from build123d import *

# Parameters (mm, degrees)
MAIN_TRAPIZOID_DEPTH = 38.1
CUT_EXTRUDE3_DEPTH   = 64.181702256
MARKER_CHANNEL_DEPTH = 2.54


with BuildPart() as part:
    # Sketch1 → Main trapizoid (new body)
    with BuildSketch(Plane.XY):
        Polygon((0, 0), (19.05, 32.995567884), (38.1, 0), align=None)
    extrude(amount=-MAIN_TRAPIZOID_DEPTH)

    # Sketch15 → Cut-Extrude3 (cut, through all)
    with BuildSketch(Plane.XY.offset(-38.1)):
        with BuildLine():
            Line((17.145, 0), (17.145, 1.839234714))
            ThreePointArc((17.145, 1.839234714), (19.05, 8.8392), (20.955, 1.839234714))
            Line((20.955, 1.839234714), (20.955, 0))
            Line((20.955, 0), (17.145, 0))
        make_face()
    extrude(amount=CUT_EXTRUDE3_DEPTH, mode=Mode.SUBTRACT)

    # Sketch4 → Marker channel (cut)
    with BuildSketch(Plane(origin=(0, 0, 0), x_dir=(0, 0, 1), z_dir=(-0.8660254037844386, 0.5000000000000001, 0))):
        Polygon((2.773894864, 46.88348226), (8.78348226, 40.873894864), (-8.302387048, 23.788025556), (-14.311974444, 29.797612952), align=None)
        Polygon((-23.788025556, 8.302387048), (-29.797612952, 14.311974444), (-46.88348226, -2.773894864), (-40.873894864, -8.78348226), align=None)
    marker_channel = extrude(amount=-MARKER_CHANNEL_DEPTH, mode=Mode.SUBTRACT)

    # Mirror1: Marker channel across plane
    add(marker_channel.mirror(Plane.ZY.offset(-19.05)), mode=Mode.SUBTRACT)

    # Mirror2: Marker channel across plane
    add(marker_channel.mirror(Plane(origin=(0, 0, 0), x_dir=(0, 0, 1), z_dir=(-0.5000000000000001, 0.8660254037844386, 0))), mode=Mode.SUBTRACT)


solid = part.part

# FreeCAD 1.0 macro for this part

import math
import FreeCAD as App
import Part
import Sketcher

V = App.Vector
Q = App.Units.Quantity

doc = App.newDocument("Part")
body = doc.addObject("PartDesign::Body", "Body")

sketch1 = doc.addObject("Sketcher::SketchObject", "Sketch")
body.addObject(sketch1)
sketch1.AttachmentSupport = (doc.XY_Plane, [""])
sketch1.MapMode = "FlatFace"
sketch1.addGeometry(Part.LineSegment(V(19, 33, 0), V(0, 0, 0)), False)
sketch1.addGeometry(Part.LineSegment(V(0, 0, 0), V(38, 0, 0)), False)
sketch1.addGeometry(Part.LineSegment(V(38, 0, 0), V(19, 33, 0)), False)
sketch1.addConstraint(Sketcher.Constraint("Coincident", 0, 2, 1, 1))
sketch1.addConstraint(Sketcher.Constraint("Coincident", 1, 2, 2, 1))
sketch1.addConstraint(Sketcher.Constraint("Coincident", 2, 2, 0, 1))
sketch1.addConstraint(Sketcher.Constraint("Horizontal", 1))
sketch1.addConstraint(Sketcher.Constraint("Coincident", 0, 2, -1, 1))
sketch1.addConstraint(Sketcher.Constraint("Equal", 0, 2))
sketch1.addConstraint(Sketcher.Constraint("DistanceX", 1, 1, 1, 2, Q("1.5 in")))
sketch1.addConstraint(Sketcher.Constraint("Angle", 0, Q("-120 deg")))
pad1 = doc.addObject("PartDesign::Pad", "Pad")
body.addObject(pad1)
pad1.Profile = sketch1
pad1.Length = Q("1.5 in")
pad1.Reversed = True

sketch2 = doc.addObject("Sketcher::SketchObject", "Sketch001")
body.addObject(sketch2)
sketch2.AttachmentSupport = (doc.XY_Plane, [""])
sketch2.MapMode = "FlatFace"
sketch2.AttachmentOffset = App.Placement(V(0, 0, -1.5 * 25.4), App.Rotation())
sketch2.addGeometry(Part.LineSegment(V(17.1, 1.8, 0), V(17.1, 0, 0)), False)
sketch2.addGeometry(Part.LineSegment(V(17.1, 0, 0), V(21, 0, 0)), False)
sketch2.addGeometry(Part.LineSegment(V(21, 0, 0), V(21, 1.8, 0)), False)
sketch2.addGeometry(Part.ArcOfCircle(Part.Circle(V(19.1, 5.1, 0), V(0, 0, 1), 3.8), math.radians(-60), math.radians(240)), False)
sketch2.addConstraint(Sketcher.Constraint("Coincident", 0, 2, 1, 1))
sketch2.addConstraint(Sketcher.Constraint("Coincident", 1, 2, 2, 1))
sketch2.addConstraint(Sketcher.Constraint("Coincident", 2, 2, 3, 1))
sketch2.addConstraint(Sketcher.Constraint("Coincident", 3, 2, 0, 1))
sketch2.addConstraint(Sketcher.Constraint("Vertical", 0))
sketch2.addConstraint(Sketcher.Constraint("Horizontal", 1))
sketch2.addConstraint(Sketcher.Constraint("Vertical", 2))
sketch2.addConstraint(Sketcher.Constraint("PointOnObject", 0, 2, -1))
sketch2.addConstraint(Sketcher.Constraint("Horizontal", 2, 2, 3, 2))
sketch2.addConstraint(Sketcher.Constraint("Radius", 3, Q("0.148 in")))
sketch2.addConstraint(Sketcher.Constraint("DistanceX", 1, 1, 1, 2, Q("0.15 in")))
sketch2.addConstraint(Sketcher.Constraint("DistanceY", -1, 1, 3, 3, Q("0.2 in")))
sketch2.addConstraint(Sketcher.Constraint("DistanceX", -1, 1, 3, 3, Q("0.75 in")))
pocket1 = doc.addObject("PartDesign::Pocket", "Pocket")
body.addObject(pocket1)
pocket1.Profile = sketch2
pocket1.Type = "ThroughAll"
pocket1.Reversed = True

sketch3 = doc.addObject("Sketcher::SketchObject", "Sketch002")
body.addObject(sketch3)
sketch3.Placement = App.Placement(V(0, 0, 0), App.Rotation(V(0, 0, 1), V(0.5, 0.866025404, 0), V(-0.866025404, 0.5, 0), "ZXY"))
sketch3.addGeometry(Part.LineSegment(V(9, 41, 0), V(3, 47, 0)), False)
sketch3.addGeometry(Part.LineSegment(V(3, 47, 0), V(-14, 30, 0)), False)
sketch3.addGeometry(Part.LineSegment(V(-14, 30, 0), V(-8, 24, 0)), False)
sketch3.addGeometry(Part.LineSegment(V(-8, 24, 0), V(9, 41, 0)), False)
sketch3.addGeometry(Part.LineSegment(V(-24, 8, 0), V(-30, 14, 0)), False)
sketch3.addGeometry(Part.LineSegment(V(-30, 14, 0), V(-47, -3, 0)), False)
sketch3.addGeometry(Part.LineSegment(V(-47, -3, 0), V(-41, -9, 0)), False)
sketch3.addGeometry(Part.LineSegment(V(-41, -9, 0), V(-24, 8, 0)), False)
sketch3.addConstraint(Sketcher.Constraint("Coincident", 0, 2, 1, 1))
sketch3.addConstraint(Sketcher.Constraint("Coincident", 1, 2, 2, 1))
sketch3.addConstraint(Sketcher.Constraint("Coincident", 2, 2, 3, 1))
sketch3.addConstraint(Sketcher.Constraint("Coincident", 3, 2, 0, 1))
sketch3.addConstraint(Sketcher.Constraint("Coincident", 4, 2, 5, 1))
sketch3.addConstraint(Sketcher.Constraint("Coincident", 5, 2, 6, 1))
sketch3.addConstraint(Sketcher.Constraint("Coincident", 6, 2, 7, 1))
sketch3.addConstraint(Sketcher.Constraint("Coincident", 7, 2, 4, 1))
sketch3.addConstraint(Sketcher.Constraint("Perpendicular", 0, 1))
sketch3.addConstraint(Sketcher.Constraint("Perpendicular", 1, 2))
sketch3.addConstraint(Sketcher.Constraint("Perpendicular", 2, 3))
sketch3.addConstraint(Sketcher.Constraint("Perpendicular", 3, 4))
sketch3.addConstraint(Sketcher.Constraint("Perpendicular", 4, 5))
sketch3.addConstraint(Sketcher.Constraint("Perpendicular", 5, 6))
sketch3.addConstraint(Sketcher.Constraint("Perpendicular", 6, 7))
sketch3.addConstraint(Sketcher.Constraint("Equal", 2, 4))
sketch3.addConstraint(Sketcher.Constraint("Equal", 3, 5))
sketch3.addConstraint(Sketcher.Constraint("Angle", 0, Q("135 deg")))
sketch3.addConstraint(Sketcher.Constraint("Distance", 0, Q("0.3346 in")))
sketch3.addConstraint(Sketcher.Constraint("Distance", 1, Q("24.163068 mm")))
sketch3.addConstraint(Sketcher.Constraint("DistanceX", 4, 2, 1, 2, Q("15.485639 mm")))
sketch3.addConstraint(Sketcher.Constraint("DistanceY", 4, 2, 1, 2, Q("15.485639 mm")))
sketch3.addConstraint(Sketcher.Constraint("DistanceX", -1, 1, 0, 2, Q("2.773895 mm")))
sketch3.addConstraint(Sketcher.Constraint("DistanceY", -1, 1, 0, 2, Q("46.883482 mm")))
pocket2 = doc.addObject("PartDesign::Pocket", "Pocket001")
body.addObject(pocket2)
pocket2.Profile = sketch3
pocket2.Length = Q("0.1 in")
doc.recompute()

datumplane = doc.addObject("PartDesign::Plane", "DatumPlane")
body.addObject(datumplane)
datumplane.AttachmentSupport = (doc.YZ_Plane, [""])
datumplane.MapMode = "FlatFace"
datumplane.AttachmentOffset = App.Placement(V(0, 0, 0.75 * 25.4), App.Rotation())
mirrored = doc.addObject("PartDesign::Mirrored", "Mirrored")
body.addObject(mirrored)
mirrored.Originals = [pocket2]
mirrored.MirrorPlane = (datumplane, [""])
body.Tip = mirrored
doc.recompute()

datumplane2 = doc.addObject("PartDesign::Plane", "DatumPlane001")
body.addObject(datumplane2)
datumplane2.Placement = App.Placement(V(0, 0, 0), App.Rotation(V(0.866025404, 0.5, 0), V(0, 0, -1), V(-0.5, 0.866025404, 0), "ZXY"))
mirrored2 = doc.addObject("PartDesign::Mirrored", "Mirrored001")
body.addObject(mirrored2)
mirrored2.Originals = [pocket2]
mirrored2.MirrorPlane = (datumplane2, [""])
body.Tip = mirrored2

doc.recompute()
